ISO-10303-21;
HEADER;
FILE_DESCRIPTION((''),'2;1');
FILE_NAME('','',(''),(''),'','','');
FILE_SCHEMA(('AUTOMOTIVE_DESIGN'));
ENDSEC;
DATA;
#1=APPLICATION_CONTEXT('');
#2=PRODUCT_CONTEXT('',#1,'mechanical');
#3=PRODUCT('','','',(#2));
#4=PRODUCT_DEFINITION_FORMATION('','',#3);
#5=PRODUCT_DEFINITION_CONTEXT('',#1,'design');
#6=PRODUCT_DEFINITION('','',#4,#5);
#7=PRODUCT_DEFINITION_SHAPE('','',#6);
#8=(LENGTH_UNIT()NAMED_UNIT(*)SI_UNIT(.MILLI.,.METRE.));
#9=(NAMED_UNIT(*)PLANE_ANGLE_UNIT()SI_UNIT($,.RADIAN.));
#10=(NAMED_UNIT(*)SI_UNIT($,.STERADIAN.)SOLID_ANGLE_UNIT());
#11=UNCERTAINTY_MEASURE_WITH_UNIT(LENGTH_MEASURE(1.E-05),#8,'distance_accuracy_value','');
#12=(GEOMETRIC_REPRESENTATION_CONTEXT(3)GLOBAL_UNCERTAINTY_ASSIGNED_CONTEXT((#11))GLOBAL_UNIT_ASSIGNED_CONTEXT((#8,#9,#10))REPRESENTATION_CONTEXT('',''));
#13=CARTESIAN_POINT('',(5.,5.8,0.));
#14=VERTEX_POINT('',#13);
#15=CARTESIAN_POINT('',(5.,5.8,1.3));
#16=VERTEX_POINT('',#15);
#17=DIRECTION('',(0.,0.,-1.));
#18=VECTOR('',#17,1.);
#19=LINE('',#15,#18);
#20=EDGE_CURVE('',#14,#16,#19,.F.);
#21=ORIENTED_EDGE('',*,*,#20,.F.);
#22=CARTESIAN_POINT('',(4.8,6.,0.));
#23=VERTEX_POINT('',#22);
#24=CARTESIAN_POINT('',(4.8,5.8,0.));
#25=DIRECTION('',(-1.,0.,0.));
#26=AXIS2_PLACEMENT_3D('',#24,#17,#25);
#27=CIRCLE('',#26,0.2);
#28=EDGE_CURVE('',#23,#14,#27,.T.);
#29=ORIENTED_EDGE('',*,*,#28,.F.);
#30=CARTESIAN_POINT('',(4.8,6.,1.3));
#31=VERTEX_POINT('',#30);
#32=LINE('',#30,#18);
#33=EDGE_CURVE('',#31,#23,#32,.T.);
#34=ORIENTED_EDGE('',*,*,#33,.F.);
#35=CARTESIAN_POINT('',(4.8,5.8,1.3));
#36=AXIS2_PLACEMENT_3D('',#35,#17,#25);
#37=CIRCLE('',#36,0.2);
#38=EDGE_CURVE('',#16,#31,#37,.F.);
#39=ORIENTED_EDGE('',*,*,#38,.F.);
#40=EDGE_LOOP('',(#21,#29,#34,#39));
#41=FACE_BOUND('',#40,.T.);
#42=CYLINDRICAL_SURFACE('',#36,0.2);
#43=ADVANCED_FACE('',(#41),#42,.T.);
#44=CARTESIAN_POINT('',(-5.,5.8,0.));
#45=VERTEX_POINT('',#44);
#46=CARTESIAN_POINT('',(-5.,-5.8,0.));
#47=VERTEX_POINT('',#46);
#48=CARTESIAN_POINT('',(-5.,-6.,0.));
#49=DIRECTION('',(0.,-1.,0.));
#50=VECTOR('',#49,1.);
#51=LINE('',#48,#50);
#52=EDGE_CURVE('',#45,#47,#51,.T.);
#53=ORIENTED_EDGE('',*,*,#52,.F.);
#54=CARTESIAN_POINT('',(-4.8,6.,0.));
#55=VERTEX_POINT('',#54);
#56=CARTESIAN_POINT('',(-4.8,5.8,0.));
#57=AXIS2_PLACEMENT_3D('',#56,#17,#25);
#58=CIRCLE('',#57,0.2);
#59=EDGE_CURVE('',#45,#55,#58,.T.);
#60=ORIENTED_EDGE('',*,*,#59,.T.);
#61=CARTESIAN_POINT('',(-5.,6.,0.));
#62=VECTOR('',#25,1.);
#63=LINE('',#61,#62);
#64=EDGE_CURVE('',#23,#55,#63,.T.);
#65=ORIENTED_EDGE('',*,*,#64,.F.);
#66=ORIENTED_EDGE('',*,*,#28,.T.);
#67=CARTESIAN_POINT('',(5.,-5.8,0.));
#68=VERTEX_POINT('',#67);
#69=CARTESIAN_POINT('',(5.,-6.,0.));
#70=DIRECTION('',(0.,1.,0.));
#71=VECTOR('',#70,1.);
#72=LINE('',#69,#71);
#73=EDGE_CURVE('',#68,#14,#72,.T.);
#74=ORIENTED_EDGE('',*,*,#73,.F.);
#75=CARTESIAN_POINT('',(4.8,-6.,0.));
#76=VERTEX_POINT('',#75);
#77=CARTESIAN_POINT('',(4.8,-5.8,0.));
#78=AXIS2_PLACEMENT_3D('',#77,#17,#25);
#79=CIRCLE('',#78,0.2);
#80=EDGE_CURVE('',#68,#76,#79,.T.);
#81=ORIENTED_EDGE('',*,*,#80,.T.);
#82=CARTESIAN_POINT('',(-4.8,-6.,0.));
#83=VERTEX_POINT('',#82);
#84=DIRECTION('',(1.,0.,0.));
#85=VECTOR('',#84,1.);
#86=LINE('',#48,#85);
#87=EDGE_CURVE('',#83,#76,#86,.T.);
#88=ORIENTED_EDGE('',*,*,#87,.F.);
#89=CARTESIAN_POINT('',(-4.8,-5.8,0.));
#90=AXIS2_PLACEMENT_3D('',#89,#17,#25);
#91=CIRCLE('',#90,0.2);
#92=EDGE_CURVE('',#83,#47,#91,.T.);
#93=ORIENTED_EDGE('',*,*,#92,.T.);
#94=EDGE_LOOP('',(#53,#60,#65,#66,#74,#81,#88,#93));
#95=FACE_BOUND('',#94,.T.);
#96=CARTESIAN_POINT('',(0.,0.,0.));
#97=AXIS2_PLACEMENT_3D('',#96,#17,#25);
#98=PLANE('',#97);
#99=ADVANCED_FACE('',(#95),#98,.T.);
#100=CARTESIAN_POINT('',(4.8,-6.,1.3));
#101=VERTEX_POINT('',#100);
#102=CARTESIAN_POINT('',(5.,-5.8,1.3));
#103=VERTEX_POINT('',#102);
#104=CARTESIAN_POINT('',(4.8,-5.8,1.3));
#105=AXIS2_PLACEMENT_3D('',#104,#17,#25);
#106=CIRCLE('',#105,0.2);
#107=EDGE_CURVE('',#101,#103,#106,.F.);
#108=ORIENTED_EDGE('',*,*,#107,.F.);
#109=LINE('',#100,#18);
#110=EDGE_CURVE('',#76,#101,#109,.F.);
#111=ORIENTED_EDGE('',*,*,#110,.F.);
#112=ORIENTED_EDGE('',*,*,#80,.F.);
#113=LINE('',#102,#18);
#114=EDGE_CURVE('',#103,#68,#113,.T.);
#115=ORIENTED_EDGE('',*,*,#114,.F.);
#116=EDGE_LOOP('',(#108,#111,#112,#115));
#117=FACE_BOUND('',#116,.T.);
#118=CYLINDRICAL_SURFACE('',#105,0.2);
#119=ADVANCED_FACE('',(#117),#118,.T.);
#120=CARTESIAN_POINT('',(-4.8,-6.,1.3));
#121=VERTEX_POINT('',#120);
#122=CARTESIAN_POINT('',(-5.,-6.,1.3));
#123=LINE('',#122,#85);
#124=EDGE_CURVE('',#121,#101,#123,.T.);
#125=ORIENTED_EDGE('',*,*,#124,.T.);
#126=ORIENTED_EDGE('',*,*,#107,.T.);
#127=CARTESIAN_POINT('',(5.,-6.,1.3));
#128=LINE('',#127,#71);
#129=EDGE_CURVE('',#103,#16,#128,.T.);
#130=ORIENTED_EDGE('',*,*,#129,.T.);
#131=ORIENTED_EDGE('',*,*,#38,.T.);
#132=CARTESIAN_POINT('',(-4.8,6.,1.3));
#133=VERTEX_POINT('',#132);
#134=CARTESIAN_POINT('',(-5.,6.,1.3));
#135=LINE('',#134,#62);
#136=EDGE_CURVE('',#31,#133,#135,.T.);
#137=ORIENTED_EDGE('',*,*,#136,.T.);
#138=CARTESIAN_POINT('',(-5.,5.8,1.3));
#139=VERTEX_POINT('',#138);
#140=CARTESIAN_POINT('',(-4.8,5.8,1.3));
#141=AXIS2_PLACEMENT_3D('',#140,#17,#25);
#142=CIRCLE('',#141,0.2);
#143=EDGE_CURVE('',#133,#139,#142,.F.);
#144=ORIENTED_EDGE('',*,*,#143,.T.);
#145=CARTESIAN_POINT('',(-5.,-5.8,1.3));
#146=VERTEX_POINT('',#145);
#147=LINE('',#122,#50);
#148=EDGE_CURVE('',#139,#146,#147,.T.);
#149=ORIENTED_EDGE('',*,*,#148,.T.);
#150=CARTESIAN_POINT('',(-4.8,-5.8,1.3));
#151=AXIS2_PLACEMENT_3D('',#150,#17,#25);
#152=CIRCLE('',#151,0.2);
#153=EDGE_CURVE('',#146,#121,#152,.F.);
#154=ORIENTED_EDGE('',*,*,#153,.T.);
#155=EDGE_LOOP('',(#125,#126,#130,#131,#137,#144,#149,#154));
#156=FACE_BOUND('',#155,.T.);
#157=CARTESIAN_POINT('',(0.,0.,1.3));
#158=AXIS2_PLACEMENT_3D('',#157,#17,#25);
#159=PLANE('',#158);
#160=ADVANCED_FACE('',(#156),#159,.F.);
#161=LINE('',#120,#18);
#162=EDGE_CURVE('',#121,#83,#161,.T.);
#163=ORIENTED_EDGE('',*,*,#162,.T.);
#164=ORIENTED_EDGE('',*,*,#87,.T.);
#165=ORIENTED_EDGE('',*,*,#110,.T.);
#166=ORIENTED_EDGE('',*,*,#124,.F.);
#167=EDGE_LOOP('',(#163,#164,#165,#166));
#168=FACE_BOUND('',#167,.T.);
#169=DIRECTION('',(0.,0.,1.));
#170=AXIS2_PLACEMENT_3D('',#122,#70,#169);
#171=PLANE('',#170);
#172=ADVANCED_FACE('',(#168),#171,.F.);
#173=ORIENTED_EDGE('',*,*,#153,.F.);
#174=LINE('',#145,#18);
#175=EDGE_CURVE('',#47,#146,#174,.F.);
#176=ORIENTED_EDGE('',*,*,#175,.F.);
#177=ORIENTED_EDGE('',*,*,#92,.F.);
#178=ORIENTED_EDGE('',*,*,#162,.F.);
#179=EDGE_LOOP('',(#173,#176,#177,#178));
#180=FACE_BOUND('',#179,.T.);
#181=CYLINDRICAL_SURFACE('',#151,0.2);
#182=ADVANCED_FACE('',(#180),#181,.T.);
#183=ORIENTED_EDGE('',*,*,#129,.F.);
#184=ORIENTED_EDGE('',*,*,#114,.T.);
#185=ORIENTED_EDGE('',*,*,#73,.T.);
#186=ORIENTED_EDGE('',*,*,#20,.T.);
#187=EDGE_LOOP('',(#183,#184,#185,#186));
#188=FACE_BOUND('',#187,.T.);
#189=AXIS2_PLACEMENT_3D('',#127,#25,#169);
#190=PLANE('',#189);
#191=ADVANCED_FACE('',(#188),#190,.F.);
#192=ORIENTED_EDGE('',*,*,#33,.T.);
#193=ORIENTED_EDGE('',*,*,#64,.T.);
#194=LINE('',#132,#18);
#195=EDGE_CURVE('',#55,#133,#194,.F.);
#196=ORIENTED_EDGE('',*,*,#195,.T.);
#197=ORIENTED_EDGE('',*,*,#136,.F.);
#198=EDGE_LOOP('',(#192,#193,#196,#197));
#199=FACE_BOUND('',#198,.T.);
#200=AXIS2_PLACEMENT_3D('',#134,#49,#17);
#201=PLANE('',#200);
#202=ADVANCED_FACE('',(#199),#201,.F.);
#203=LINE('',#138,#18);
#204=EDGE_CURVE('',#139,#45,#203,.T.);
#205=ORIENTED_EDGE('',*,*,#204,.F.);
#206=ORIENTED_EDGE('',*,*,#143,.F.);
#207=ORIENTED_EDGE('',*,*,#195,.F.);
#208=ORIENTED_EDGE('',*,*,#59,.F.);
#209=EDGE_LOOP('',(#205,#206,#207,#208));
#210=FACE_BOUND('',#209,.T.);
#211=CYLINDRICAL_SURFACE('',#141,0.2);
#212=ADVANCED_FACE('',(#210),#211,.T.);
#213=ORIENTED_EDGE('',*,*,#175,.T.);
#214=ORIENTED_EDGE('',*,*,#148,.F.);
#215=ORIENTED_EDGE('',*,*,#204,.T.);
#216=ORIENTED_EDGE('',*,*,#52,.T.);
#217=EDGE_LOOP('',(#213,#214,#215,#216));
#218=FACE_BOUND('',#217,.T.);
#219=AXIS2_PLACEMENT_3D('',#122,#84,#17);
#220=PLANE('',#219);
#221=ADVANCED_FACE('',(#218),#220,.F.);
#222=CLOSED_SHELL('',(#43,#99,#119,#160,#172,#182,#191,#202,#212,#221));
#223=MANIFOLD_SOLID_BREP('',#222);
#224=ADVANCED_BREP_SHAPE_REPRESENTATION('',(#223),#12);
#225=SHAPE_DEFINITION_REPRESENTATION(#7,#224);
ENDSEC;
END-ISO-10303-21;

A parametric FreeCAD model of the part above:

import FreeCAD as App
import Part
import Sketcher
Q = App.Units.Quantity


def edges_at(feature, points):
    """Names of the edges that pass closest to the given points."""
    edges = feature.Shape.Edges
    near = lambda p: min(range(len(edges)), key=lambda i: edges[i].distToShape(Part.Vertex(*p))[0])
    return sorted({f"Edge{near(p) + 1}" for p in points})


def add_polygon(sketch, points):
    """Adds a closed chain of lines whose ends are joined by coincident constraints."""
    first, n = sketch.GeometryCount, len(points)
    for a, b in zip(points, points[1:] + points[:1]):
        sketch.addGeometry(Part.LineSegment(App.Vector(*a, 0), App.Vector(*b, 0)), False)
    for i in range(n):
        sketch.addConstraint(Sketcher.Constraint("Coincident", first + i, 2, first + (i + 1) % n, 1))

doc = App.newDocument("Part")
body = doc.addObject("PartDesign::Body", "Body")

# Sketch on XY plane
sketch1 = body.newObject("Sketcher::SketchObject", "Sketch")
sketch1.AttachmentSupport = (doc.getObject("XY_Plane"), [""])
sketch1.MapMode = "FlatFace"
add_polygon(sketch1, [(-5, 6), (-5, -6), (5, -6), (5, 6)])  # lines 0-3
sketch1.addConstraint(Sketcher.Constraint("Vertical", 0))
sketch1.addConstraint(Sketcher.Constraint("Horizontal", 1))
sketch1.addConstraint(Sketcher.Constraint("Vertical", 2))
sketch1.addConstraint(Sketcher.Constraint("Horizontal", 3))
sketch1.addConstraint(Sketcher.Constraint("Symmetric", 0, 2, 2, 2, -1, 1))
sketch1.addConstraint(Sketcher.Constraint("DistanceX", 1, 1, 1, 2, Q("10 mm")))
sketch1.addConstraint(Sketcher.Constraint("DistanceY", 0, 2, 0, 1, Q("12 mm")))
pad1 = body.newObject("PartDesign::Pad", "Pad")
pad1.Profile = sketch1
pad1.Length = 1.3
doc.recompute()

fillet = body.newObject("PartDesign::Fillet", "Fillet")
fillet.Base = (pad1, edges_at(pad1, [
    (5, -6, 0.65),
    (-5, -6, 0.65),
    (-5, 6, 0.65),
    (5, 6, 0.65),
]))
fillet.Radius = 0.2

doc.recompute()
